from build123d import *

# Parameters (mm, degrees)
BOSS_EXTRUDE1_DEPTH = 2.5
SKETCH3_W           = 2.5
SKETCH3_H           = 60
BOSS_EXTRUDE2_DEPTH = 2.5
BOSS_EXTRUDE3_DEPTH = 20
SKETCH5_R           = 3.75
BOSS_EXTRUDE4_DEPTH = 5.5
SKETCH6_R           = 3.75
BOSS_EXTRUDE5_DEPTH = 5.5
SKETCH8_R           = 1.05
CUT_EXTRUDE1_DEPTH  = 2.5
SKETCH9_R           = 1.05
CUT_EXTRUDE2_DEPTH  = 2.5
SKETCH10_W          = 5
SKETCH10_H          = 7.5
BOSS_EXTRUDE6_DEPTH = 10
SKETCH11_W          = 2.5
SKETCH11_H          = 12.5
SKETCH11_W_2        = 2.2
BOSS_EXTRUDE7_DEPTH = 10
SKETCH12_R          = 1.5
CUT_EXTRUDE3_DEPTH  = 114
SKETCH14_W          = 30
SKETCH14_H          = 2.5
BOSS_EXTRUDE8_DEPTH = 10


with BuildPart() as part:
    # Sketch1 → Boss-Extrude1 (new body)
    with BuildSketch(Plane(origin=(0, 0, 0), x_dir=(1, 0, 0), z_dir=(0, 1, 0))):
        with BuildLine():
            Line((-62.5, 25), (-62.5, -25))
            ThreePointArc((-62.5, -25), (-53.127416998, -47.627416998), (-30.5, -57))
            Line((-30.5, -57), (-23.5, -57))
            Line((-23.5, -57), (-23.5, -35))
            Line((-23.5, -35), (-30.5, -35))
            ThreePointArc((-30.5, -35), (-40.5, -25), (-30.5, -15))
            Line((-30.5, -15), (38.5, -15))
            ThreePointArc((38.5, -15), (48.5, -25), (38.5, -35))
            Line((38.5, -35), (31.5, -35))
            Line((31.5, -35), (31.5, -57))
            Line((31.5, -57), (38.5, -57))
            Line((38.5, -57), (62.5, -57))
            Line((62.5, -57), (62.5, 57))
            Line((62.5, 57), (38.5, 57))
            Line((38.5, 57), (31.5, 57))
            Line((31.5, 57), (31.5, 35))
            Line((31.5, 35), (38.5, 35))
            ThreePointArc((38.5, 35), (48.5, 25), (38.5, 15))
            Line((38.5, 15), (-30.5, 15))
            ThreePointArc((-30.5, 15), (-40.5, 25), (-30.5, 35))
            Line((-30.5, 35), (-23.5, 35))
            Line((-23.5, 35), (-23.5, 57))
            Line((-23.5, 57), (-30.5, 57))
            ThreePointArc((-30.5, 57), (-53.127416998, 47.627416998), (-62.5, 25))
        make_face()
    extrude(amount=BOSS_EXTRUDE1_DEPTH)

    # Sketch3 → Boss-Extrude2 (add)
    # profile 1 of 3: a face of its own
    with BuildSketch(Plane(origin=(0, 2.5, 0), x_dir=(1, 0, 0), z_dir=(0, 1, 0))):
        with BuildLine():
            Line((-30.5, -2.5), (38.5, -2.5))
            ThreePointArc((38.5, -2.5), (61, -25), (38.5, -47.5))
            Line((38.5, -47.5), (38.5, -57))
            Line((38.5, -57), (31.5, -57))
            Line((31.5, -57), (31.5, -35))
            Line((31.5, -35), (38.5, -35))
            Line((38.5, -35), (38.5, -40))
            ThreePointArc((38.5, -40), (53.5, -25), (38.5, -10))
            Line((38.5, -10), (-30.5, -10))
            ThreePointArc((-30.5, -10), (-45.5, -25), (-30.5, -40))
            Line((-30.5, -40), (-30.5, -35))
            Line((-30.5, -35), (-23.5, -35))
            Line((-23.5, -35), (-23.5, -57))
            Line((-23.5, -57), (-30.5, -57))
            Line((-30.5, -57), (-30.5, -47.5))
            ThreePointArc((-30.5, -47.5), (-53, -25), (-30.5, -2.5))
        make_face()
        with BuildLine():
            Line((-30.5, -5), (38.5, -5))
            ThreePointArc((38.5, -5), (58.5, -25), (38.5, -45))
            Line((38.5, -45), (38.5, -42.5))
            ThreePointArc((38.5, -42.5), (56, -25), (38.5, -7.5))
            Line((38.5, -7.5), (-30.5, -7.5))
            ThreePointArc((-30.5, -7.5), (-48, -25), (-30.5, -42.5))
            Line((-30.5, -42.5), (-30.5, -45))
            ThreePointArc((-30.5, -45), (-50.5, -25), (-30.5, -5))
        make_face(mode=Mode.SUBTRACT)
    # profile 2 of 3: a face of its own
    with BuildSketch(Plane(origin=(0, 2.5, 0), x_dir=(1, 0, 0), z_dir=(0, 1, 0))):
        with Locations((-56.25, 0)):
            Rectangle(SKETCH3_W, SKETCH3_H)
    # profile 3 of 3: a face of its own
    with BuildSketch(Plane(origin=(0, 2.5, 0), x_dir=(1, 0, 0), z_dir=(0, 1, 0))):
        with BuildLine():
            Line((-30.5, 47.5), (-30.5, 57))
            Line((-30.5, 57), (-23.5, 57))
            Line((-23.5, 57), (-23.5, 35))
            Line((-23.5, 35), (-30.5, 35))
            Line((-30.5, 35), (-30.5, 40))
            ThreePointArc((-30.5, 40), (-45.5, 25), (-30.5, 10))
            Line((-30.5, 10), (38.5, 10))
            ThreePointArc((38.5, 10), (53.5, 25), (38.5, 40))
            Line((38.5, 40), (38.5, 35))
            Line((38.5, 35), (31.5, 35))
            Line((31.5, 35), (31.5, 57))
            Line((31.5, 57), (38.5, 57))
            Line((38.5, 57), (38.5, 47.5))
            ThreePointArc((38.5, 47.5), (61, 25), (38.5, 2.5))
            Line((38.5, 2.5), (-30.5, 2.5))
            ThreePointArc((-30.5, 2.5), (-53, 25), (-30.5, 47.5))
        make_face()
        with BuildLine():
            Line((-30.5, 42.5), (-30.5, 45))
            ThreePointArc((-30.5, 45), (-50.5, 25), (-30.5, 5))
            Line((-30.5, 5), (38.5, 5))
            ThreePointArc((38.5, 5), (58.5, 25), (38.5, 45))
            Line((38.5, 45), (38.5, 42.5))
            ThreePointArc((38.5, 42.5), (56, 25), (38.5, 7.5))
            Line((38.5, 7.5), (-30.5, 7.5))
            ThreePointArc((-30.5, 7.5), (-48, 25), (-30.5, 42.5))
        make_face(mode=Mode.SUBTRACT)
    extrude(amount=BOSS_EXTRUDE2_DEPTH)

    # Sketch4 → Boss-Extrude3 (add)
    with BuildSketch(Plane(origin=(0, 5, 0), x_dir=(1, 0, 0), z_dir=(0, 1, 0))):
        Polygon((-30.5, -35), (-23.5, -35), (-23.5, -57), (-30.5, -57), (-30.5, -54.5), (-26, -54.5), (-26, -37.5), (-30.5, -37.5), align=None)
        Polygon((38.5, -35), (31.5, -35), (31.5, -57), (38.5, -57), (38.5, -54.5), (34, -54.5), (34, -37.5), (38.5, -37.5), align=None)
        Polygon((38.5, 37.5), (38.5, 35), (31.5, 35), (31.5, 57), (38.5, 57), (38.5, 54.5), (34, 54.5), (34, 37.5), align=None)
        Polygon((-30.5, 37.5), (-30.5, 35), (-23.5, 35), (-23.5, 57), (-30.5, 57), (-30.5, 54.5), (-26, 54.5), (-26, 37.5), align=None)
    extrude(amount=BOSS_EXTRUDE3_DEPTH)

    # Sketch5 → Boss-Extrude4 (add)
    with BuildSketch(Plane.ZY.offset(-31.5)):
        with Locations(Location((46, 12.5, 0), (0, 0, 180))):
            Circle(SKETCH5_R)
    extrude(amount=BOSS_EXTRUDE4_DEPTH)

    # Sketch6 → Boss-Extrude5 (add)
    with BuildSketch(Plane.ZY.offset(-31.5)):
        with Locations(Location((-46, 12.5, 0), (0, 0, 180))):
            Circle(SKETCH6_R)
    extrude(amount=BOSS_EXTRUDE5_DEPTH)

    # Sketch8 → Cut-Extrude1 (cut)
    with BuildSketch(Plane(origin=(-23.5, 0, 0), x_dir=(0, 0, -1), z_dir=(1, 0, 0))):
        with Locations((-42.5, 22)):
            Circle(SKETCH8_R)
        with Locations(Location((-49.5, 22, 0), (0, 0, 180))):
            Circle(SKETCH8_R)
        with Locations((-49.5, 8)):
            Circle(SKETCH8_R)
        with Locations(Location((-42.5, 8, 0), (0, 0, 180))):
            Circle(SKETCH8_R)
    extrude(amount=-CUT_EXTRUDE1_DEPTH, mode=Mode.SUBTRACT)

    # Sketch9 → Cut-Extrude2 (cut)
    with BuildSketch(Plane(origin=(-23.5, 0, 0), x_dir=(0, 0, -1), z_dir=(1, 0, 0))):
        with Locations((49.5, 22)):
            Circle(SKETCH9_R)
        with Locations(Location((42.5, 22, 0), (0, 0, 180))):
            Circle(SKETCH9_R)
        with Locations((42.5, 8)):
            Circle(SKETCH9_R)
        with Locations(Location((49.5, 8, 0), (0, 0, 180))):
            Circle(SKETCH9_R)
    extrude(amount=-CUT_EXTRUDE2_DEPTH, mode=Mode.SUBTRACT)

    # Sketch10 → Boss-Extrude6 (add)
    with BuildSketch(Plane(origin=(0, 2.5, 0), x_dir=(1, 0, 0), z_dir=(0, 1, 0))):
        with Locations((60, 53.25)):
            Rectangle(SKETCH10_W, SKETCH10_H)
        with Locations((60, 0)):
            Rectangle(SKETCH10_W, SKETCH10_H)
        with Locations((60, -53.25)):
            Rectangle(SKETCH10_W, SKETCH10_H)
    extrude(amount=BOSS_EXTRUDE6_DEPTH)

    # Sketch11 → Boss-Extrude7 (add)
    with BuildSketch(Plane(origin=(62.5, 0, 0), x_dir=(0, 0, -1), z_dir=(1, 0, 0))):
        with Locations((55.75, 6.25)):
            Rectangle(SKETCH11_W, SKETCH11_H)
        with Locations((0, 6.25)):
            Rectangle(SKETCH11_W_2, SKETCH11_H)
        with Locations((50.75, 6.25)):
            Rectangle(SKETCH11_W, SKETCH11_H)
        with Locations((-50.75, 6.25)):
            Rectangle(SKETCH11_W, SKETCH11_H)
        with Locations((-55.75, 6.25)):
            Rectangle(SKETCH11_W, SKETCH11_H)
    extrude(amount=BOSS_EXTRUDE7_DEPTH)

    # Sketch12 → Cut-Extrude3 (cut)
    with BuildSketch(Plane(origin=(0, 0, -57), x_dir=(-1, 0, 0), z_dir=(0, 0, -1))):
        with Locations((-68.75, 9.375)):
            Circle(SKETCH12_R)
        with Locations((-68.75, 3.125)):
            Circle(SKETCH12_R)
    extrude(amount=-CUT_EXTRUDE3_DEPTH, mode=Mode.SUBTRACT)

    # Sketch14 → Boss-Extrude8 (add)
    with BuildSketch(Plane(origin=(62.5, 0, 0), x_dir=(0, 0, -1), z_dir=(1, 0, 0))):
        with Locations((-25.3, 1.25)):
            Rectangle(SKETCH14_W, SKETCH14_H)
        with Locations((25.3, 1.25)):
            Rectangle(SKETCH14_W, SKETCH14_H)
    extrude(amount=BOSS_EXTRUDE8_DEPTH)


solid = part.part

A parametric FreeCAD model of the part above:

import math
import FreeCAD as App
import Part
import Sketcher
from FreeCAD import Vector
Q = App.Units.Quantity


def add_polygon(sketch, points):
    """Adds a closed chain of lines whose ends are joined by coincident constraints."""
    first, n = sketch.GeometryCount, len(points)
    for a, b in zip(points, points[1:] + points[:1]):
        sketch.addGeometry(Part.LineSegment(App.Vector(*a, 0), App.Vector(*b, 0)), False)
    for i in range(n):
        sketch.addConstraint(Sketcher.Constraint("Coincident", first + i, 2, first + (i + 1) % n, 1))

doc = App.newDocument("Part")
params = doc.addObject("Spreadsheet::Sheet", "Params")
for row, (alias, value) in enumerate([
    ("sketch1_radius", "32 mm"),
    ("sketch1_radius2", "10 mm"),
    ("sketch1_width", "7 mm"),
    ("sketch1_width2", "69 mm"),
    ("sketch1_width3", "31 mm"),
    ("pad1_length", "2.5 mm"),
    ("sketch2_radius", "15 mm"),
    ("sketch2_radius2", "20 mm"),
    ("sketch2_radius3", "22.5 mm"),
    ("sketch2_radius4", "17.5 mm"),
    ("sketch2_width", "69 mm"),
    ("pad2_length", "2.5 mm"),
    ("sketch3_width", "7 mm"),
    ("sketch3_height", "17 mm"),
    ("sketch3_height2", "22 mm"),
    ("sketch3_width2", "4.5 mm"),
    ("pad3_length", "20 mm"),
    ("sketch4_diameter", "7.5 mm"),
    ("pad4_length", "5.5 mm"),
    ("sketch5_diameter", "7.5 mm"),
    ("pad5_length", "5.5 mm"),
    ("sketch6_diameter", "2.1 mm"),
    ("pocket1_length", "2.5 mm"),
    ("sketch7_diameter", "2.1 mm"),
    ("pocket2_length", "2.5 mm"),
    ("sketch8_width", "5 mm"),
    ("sketch8_height", "7.5 mm"),
    ("pad6_length", "10 mm"),
    ("sketch9_width", "12.5 mm"),
    ("sketch9_height", "2.5 mm"),
    ("sketch9_height2", "2.2 mm"),
    ("pad7_length", "10 mm"),
    ("sketch10_diameter", "3 mm"),
    ("pocket3_length", "114 mm"),
    ("sketch11_height", "30 mm"),
    ("sketch11_width", "2.5 mm"),
    ("pad8_length", "10 mm"),
], start=1):
    params.set(f"A{row}", alias)
    params.set(f"B{row}", "=" + value)
    params.setAlias(f"B{row}", alias)

body = doc.addObject("PartDesign::Body", "Body")

sketch1 = body.newObject("Sketcher::SketchObject", "Sketch")
sketch1.AttachmentSupport = (doc.getObject("XZ_Plane"), [""])
sketch1.MapMode = "FlatFace"
sketch1.addGeometry([
    Part.LineSegment(Vector(-62, -25, 0), Vector(-62, 25, 0)),
    Part.ArcOfCircle(Part.Circle(Vector(-30, 25, 0), Vector(0, 0, 1), 32), math.radians(90), math.radians(180)),
    Part.LineSegment(Vector(-30, 57, 0), Vector(-24, 57, 0)),
    Part.LineSegment(Vector(-24, 57, 0), Vector(-24, 35, 0)),
    Part.LineSegment(Vector(-24, 35, 0), Vector(-30, 35, 0)),
    Part.ArcOfCircle(Part.Circle(Vector(-30, 25, 0), Vector(0, 0, 1), 10), math.radians(90), math.radians(270)),
    Part.LineSegment(Vector(-30, 15, 0), Vector(38, 15, 0)),
    Part.ArcOfCircle(Part.Circle(Vector(38, 25, 0), Vector(0, 0, 1), 10), math.radians(-90), math.radians(90)),
    Part.LineSegment(Vector(38, 35, 0), Vector(32, 35, 0)),
    Part.LineSegment(Vector(32, 35, 0), Vector(32, 57, 0)),
    Part.LineSegment(Vector(32, 57, 0), Vector(62, 57, 0)),
    Part.LineSegment(Vector(62, 57, 0), Vector(62, -57, 0)),
    Part.LineSegment(Vector(62, -57, 0), Vector(32, -57, 0)),
    Part.LineSegment(Vector(32, -57, 0), Vector(32, -35, 0)),
    Part.LineSegment(Vector(32, -35, 0), Vector(38, -35, 0)),
    Part.ArcOfCircle(Part.Circle(Vector(38, -25, 0), Vector(0, 0, 1), 10), math.radians(-90), math.radians(90)),
    Part.LineSegment(Vector(38, -15, 0), Vector(-30, -15, 0)),
    Part.ArcOfCircle(Part.Circle(Vector(-30, -25, 0), Vector(0, 0, 1), 10), math.radians(90), math.radians(270)),
    Part.LineSegment(Vector(-30, -35, 0), Vector(-24, -35, 0)),
    Part.LineSegment(Vector(-24, -35, 0), Vector(-24, -57, 0)),
    Part.LineSegment(Vector(-24, -57, 0), Vector(-30, -57, 0)),
    Part.ArcOfCircle(Part.Circle(Vector(-30, -25, 0), Vector(0, 0, 1), 32), math.radians(180), math.radians(270)),
], False)
sketch1.addConstraint([
    Sketcher.Constraint("Tangent", 0, 2, 1, 2),
    Sketcher.Constraint("Tangent", 1, 1, 2, 1),
    Sketcher.Constraint("Coincident", 2, 2, 3, 1),
    Sketcher.Constraint("Coincident", 3, 2, 4, 1),
    Sketcher.Constraint("Tangent", 4, 2, 5, 1),
    Sketcher.Constraint("Tangent", 5, 2, 6, 1),
    Sketcher.Constraint("Tangent", 6, 2, 7, 1),
    Sketcher.Constraint("Tangent", 7, 2, 8, 1),
    Sketcher.Constraint("Coincident", 8, 2, 9, 1),
    Sketcher.Constraint("Coincident", 9, 2, 10, 1),
    Sketcher.Constraint("Coincident", 10, 2, 11, 1),
    Sketcher.Constraint("Coincident", 11, 2, 12, 1),
    Sketcher.Constraint("Coincident", 12, 2, 13, 1),
    Sketcher.Constraint("Coincident", 13, 2, 14, 1),
    Sketcher.Constraint("Tangent", 14, 2, 15, 1),
    Sketcher.Constraint("Tangent", 15, 2, 16, 1),
    Sketcher.Constraint("Tangent", 16, 2, 17, 1),
    Sketcher.Constraint("Tangent", 17, 2, 18, 1),
    Sketcher.Constraint("Coincident", 18, 2, 19, 1),
    Sketcher.Constraint("Coincident", 19, 2, 20, 1),
    Sketcher.Constraint("Tangent", 20, 2, 21, 2),
    Sketcher.Constraint("Tangent", 21, 1, 0, 1),
    Sketcher.Constraint("Vertical", 0),
    Sketcher.Constraint("Horizontal", 2),
    Sketcher.Constraint("Vertical", 3),
    Sketcher.Constraint("Horizontal", 4),
    Sketcher.Constraint("Horizontal", 6),
    Sketcher.Constraint("Horizontal", 8),
    Sketcher.Constraint("Vertical", 9),
    Sketcher.Constraint("Horizontal", 10),
    Sketcher.Constraint("Vertical", 11),
    Sketcher.Constraint("Horizontal", 12),
    Sketcher.Constraint("Vertical", 13),
    Sketcher.Constraint("Horizontal", 14),
    Sketcher.Constraint("Horizontal", 16),
    Sketcher.Constraint("Horizontal", 18),
    Sketcher.Constraint("Vertical", 19),
    Sketcher.Constraint("Horizontal", 20),
    Sketcher.Constraint("Coincident", 5, 3, 1, 3),
    Sketcher.Constraint("Coincident", 21, 3, 17, 3),
    Sketcher.Constraint("Equal", 5, 7),
    Sketcher.Constraint("Equal", 7, 15),
    Sketcher.Constraint("Equal", 15, 17),
    Sketcher.Constraint("Equal", 1, 21),
    Sketcher.Constraint("Symmetric", 7, 3, 15, 3, -1),
    Sketcher.Constraint("Symmetric", 9, 2, 12, 2, -1),
    Sketcher.Constraint("Horizontal", 2, 2, 9, 2),
    Sketcher.Constraint("Vertical", 3, 2, 18, 2),
    Sketcher.Constraint("Equal", 4, 8),
    Sketcher.Constraint("Radius", 1, Q("32 mm")),
    Sketcher.Constraint("Radius", 5, Q("10 mm")),
    Sketcher.Constraint("DistanceX", 2, 1, 2, 2, Q("7 mm")),
    Sketcher.Constraint("DistanceX", 6, 1, 6, 2, Q("69 mm")),
    Sketcher.Constraint("DistanceX", 10, 1, 10, 2, Q("31 mm")),
    Sketcher.Constraint("DistanceY", 0, 1, 0, 2, Q("50 mm")),
    Sketcher.Constraint("DistanceX", 1, 3, -1, 1, Q("30.5 mm")),
])
sketch1.setExpression("Constraints[49]", "Params.sketch1_radius")
sketch1.setExpression("Constraints[50]", "Params.sketch1_radius2")
sketch1.setExpression("Constraints[51]", "Params.sketch1_width")
sketch1.setExpression("Constraints[52]", "Params.sketch1_width2")
sketch1.setExpression("Constraints[53]", "Params.sketch1_width3")
pad1 = body.newObject("PartDesign::Pad", "Pad")
pad1.Profile = sketch1
pad1.setExpression("Length", "Params.pad1_length")
pad1.Reversed = True

sketch2 = body.newObject("Sketcher::SketchObject", "Sketch001")
sketch2.AttachmentSupport = (doc.getObject("XZ_Plane"), [""])
sketch2.MapMode = "FlatFace"
sketch2.AttachmentOffset = App.Placement(Vector(0, 0, -2.5), App.Rotation())
sketch2.addGeometry(Part.LineSegment(Vector(38.5, 2.5, 0), Vector(-30.5, 2.5, 0)), False)
sketch2.addGeometry(Part.ArcOfCircle(Part.Circle(Vector(-30.5, 25, 0), Vector(0, 0, 1), 22.5), math.radians(90), math.radians(270)), False)
sketch2.addGeometry(Part.LineSegment(Vector(-30.5, 47.5, 0), Vector(-30.5, 57, 0)), False)
sketch2.addGeometry(Part.LineSegment(Vector(-30.5, 57, 0), Vector(-23.5, 57, 0)), False)
sketch2.addGeometry(Part.LineSegment(Vector(-23.5, 57, 0), Vector(-23.5, 35, 0)), False)
sketch2.addGeometry(Part.LineSegment(Vector(-23.5, 35, 0), Vector(-30.5, 35, 0)), False)
sketch2.addGeometry(Part.LineSegment(Vector(-30.5, 35, 0), Vector(-30.5, 40, 0)), False)
sketch2.addGeometry(Part.ArcOfCircle(Part.Circle(Vector(-30.5, 25, 0), Vector(0, 0, 1), 15), math.radians(90), math.radians(270)), False)
sketch2.addGeometry(Part.LineSegment(Vector(-30.5, 10, 0), Vector(38.5, 10, 0)), False)
sketch2.addGeometry(Part.ArcOfCircle(Part.Circle(Vector(38.5, 25, 0), Vector(0, 0, 1), 15), math.radians(-90), math.radians(90)), False)
sketch2.addGeometry(Part.LineSegment(Vector(38.5, 40, 0), Vector(38.5, 35, 0)), False)
sketch2.addGeometry(Part.LineSegment(Vector(38.5, 35, 0), Vector(31.5, 35, 0)), False)
sketch2.addGeometry(Part.LineSegment(Vector(31.5, 35, 0), Vector(31.5, 57, 0)), False)
sketch2.addGeometry(Part.LineSegment(Vector(31.5, 57, 0), Vector(38.5, 57, 0)), False)
sketch2.addGeometry(Part.LineSegment(Vector(38.5, 57, 0), Vector(38.5, 47.5, 0)), False)
sketch2.addGeometry(Part.ArcOfCircle(Part.Circle(Vector(38.5, 25, 0), Vector(0, 0, 1), 22.5), math.radians(-90), math.radians(90)), False)
sketch2.addGeometry(Part.LineSegment(Vector(-30.5, 5, 0), Vector(38.5, 5, 0)), False)
sketch2.addGeometry(Part.ArcOfCircle(Part.Circle(Vector(38.5, 25, 0), Vector(0, 0, 1), 20), math.radians(-90), math.radians(90)), False)
sketch2.addGeometry(Part.LineSegment(Vector(38.5, 45, 0), Vector(38.5, 42.5, 0)), False)
sketch2.addGeometry(Part.ArcOfCircle(Part.Circle(Vector(38.5, 25, 0), Vector(0, 0, 1), 17.5), math.radians(-90), math.radians(90)), False)
sketch2.addGeometry(Part.LineSegment(Vector(38.5, 7.5, 0), Vector(-30.5, 7.5, 0)), False)
sketch2.addGeometry(Part.ArcOfCircle(Part.Circle(Vector(-30.5, 25, 0), Vector(0, 0, 1), 17.5), math.radians(90), math.radians(270)), False)
sketch2.addGeometry(Part.LineSegment(Vector(-30.5, 42.5, 0), Vector(-30.5, 45, 0)), False)
sketch2.addGeometry(Part.ArcOfCircle(Part.Circle(Vector(-30.5, 25, 0), Vector(0, 0, 1), 20), math.radians(90), math.radians(270)), False)
add_polygon(sketch2, [(-57.5, -30), (-57.5, 30), (-55, 30), (-55, -30)])
sketch2.addGeometry(Part.LineSegment(Vector(-30.5, -57, 0), Vector(-30.5, -47.5, 0)), False)
sketch2.addGeometry(Part.ArcOfCircle(Part.Circle(Vector(-30.5, -25, 0), Vector(0, 0, 1), 22.5), math.radians(90), math.radians(270)), False)
sketch2.addGeometry(Part.LineSegment(Vector(-30.5, -2.5, 0), Vector(38.5, -2.5, 0)), False)
sketch2.addGeometry(Part.ArcOfCircle(Part.Circle(Vector(38.5, -25, 0), Vector(0, 0, 1), 22.5), math.radians(-90), math.radians(90)), False)
sketch2.addGeometry(Part.LineSegment(Vector(38.5, -47.5, 0), Vector(38.5, -57, 0)), False)
sketch2.addGeometry(Part.LineSegment(Vector(38.5, -57, 0), Vector(31.5, -57, 0)), False)
sketch2.addGeometry(Part.LineSegment(Vector(31.5, -57, 0), Vector(31.5, -35, 0)), False)
sketch2.addGeometry(Part.LineSegment(Vector(31.5, -35, 0), Vector(38.5, -35, 0)), False)
sketch2.addGeometry(Part.LineSegment(Vector(38.5, -35, 0), Vector(38.5, -40, 0)), False)
sketch2.addGeometry(Part.ArcOfCircle(Part.Circle(Vector(38.5, -25, 0), Vector(0, 0, 1), 15), math.radians(-90), math.radians(90)), False)
sketch2.addGeometry(Part.LineSegment(Vector(38.5, -10, 0), Vector(-30.5, -10, 0)), False)
sketch2.addGeometry(Part.ArcOfCircle(Part.Circle(Vector(-30.5, -25, 0), Vector(0, 0, 1), 15), math.radians(90), math.radians(270)), False)
sketch2.addGeometry(Part.LineSegment(Vector(-30.5, -40, 0), Vector(-30.5, -35, 0)), False)
sketch2.addGeometry(Part.LineSegment(Vector(-30.5, -35, 0), Vector(-23.5, -35, 0)), False)
sketch2.addGeometry(Part.LineSegment(Vector(-23.5, -35, 0), Vector(-23.5, -57, 0)), False)
sketch2.addGeometry(Part.LineSegment(Vector(-23.5, -57, 0), Vector(-30.5, -57, 0)), False)
sketch2.addGeometry(Part.ArcOfCircle(Part.Circle(Vector(-30.5, -25, 0), Vector(0, 0, 1), 17.5), math.radians(90), math.radians(270)), False)
sketch2.addGeometry(Part.LineSegment(Vector(-30.5, -7.5, 0), Vector(38.5, -7.5, 0)), False)
sketch2.addGeometry(Part.ArcOfCircle(Part.Circle(Vector(38.5, -25, 0), Vector(0, 0, 1), 17.5), math.radians(-90), math.radians(90)), False)
sketch2.addGeometry(Part.LineSegment(Vector(38.5, -42.5, 0), Vector(38.5, -45, 0)), False)
sketch2.addGeometry(Part.ArcOfCircle(Part.Circle(Vector(38.5, -25, 0), Vector(0, 0, 1), 20), math.radians(-90), math.radians(90)), False)
sketch2.addGeometry(Part.LineSegment(Vector(38.5, -5, 0), Vector(-30.5, -5, 0)), False)
sketch2.addGeometry(Part.ArcOfCircle(Part.Circle(Vector(-30.5, -25, 0), Vector(0, 0, 1), 20), math.radians(90), math.radians(270)), False)
sketch2.addGeometry(Part.LineSegment(Vector(-30.5, -45, 0), Vector(-30.5, -42.5, 0)), False)
sketch2.addConstraint([
    Sketcher.Constraint("Tangent", 0, 2, 1, 2),
    Sketcher.Constraint("Coincident", 1, 1, 2, 1),
    Sketcher.Constraint("Coincident", 2, 2, 3, 1),
    Sketcher.Constraint("Coincident", 3, 2, 4, 1),
    Sketcher.Constraint("Coincident", 4, 2, 5, 1),
    Sketcher.Constraint("Coincident", 5, 2, 6, 1),
    Sketcher.Constraint("Coincident", 6, 2, 7, 1),
    Sketcher.Constraint("Tangent", 7, 2, 8, 1),
    Sketcher.Constraint("Tangent", 8, 2, 9, 1),
    Sketcher.Constraint("Coincident", 9, 2, 10, 1),
    Sketcher.Constraint("Coincident", 10, 2, 11, 1),
    Sketcher.Constraint("Coincident", 11, 2, 12, 1),
    Sketcher.Constraint("Coincident", 12, 2, 13, 1),
    Sketcher.Constraint("Coincident", 13, 2, 14, 1),
    Sketcher.Constraint("Coincident", 14, 2, 15, 2),
    Sketcher.Constraint("Tangent", 15, 1, 0, 1),
    Sketcher.Constraint("Tangent", 16, 2, 17, 1),
    Sketcher.Constraint("Coincident", 17, 2, 18, 1),
    Sketcher.Constraint("Coincident", 18, 2, 19, 2),
    Sketcher.Constraint("Tangent", 19, 1, 20, 1),
    Sketcher.Constraint("Tangent", 20, 2, 21, 2),
    Sketcher.Constraint("Coincident", 21, 1, 22, 1),
    Sketcher.Constraint("Coincident", 22, 2, 23, 1),
    Sketcher.Constraint("Tangent", 23, 2, 16, 1),
    Sketcher.Constraint("Coincident", 28, 2, 29, 2),
    Sketcher.Constraint("Tangent", 29, 1, 30, 1),
    Sketcher.Constraint("Tangent", 30, 2, 31, 2),
    Sketcher.Constraint("Coincident", 31, 1, 32, 1),
    Sketcher.Constraint("Coincident", 32, 2, 33, 1),
    Sketcher.Constraint("Coincident", 33, 2, 34, 1),
    Sketcher.Constraint("Coincident", 34, 2, 35, 1),
    Sketcher.Constraint("Coincident", 35, 2, 36, 1),
    Sketcher.Constraint("Coincident", 36, 2, 37, 1),
    Sketcher.Constraint("Tangent", 37, 2, 38, 1),
    Sketcher.Constraint("Tangent", 38, 2, 39, 1),
    Sketcher.Constraint("Coincident", 39, 2, 40, 1),
    Sketcher.Constraint("Coincident", 40, 2, 41, 1),
    Sketcher.Constraint("Coincident", 41, 2, 42, 1),
    Sketcher.Constraint("Coincident", 42, 2, 43, 1),
    Sketcher.Constraint("Coincident", 43, 2, 28, 1),
    Sketcher.Constraint("Tangent", 44, 1, 45, 1),
    Sketcher.Constraint("Tangent", 45, 2, 46, 2),
    Sketcher.Constraint("Coincident", 46, 1, 47, 1),
    Sketcher.Constraint("Coincident", 47, 2, 48, 1),
    Sketcher.Constraint("Tangent", 48, 2, 49, 1),
    Sketcher.Constraint("Tangent", 49, 2, 50, 1),
    Sketcher.Constraint("Coincident", 50, 2, 51, 1),
    Sketcher.Constraint("Coincident", 51, 2, 44, 2),
    Sketcher.Constraint("Horizontal", 0),
    Sketcher.Constraint("Vertical", 2),
    Sketcher.Constraint("Horizontal", 3),
    Sketcher.Constraint("Vertical", 4),
    Sketcher.Constraint("Horizontal", 5),
    Sketcher.Constraint("Vertical", 6),
    Sketcher.Constraint("Horizontal", 8),
    Sketcher.Constraint("Vertical", 10),
    Sketcher.Constraint("Horizontal", 11),
    Sketcher.Constraint("Vertical", 12),
    Sketcher.Constraint("Horizontal", 13),
    Sketcher.Constraint("Vertical", 14),
    Sketcher.Constraint("Horizontal", 16),
    Sketcher.Constraint("Vertical", 18),
    Sketcher.Constraint("Horizontal", 20),
    Sketcher.Constraint("Vertical", 22),
    Sketcher.Constraint("Vertical", 24),
    Sketcher.Constraint("Horizontal", 25),
    Sketcher.Constraint("Vertical", 26),
    Sketcher.Constraint("Horizontal", 27),
    Sketcher.Constraint("Vertical", 28),
    Sketcher.Constraint("Horizontal", 30),
    Sketcher.Constraint("Vertical", 32),
    Sketcher.Constraint("Horizontal", 33),
    Sketcher.Constraint("Vertical", 34),
    Sketcher.Constraint("Horizontal", 35),
    Sketcher.Constraint("Vertical", 36),
    Sketcher.Constraint("Horizontal", 38),
    Sketcher.Constraint("Vertical", 40),
    Sketcher.Constraint("Horizontal", 41),
    Sketcher.Constraint("Vertical", 42),
    Sketcher.Constraint("Horizontal", 43),
    Sketcher.Constraint("Horizontal", 45),
    Sketcher.Constraint("Vertical", 47),
    Sketcher.Constraint("Horizontal", 49),
    Sketcher.Constraint("Vertical", 51),
    Sketcher.Constraint("Coincident", 7, 3, 1, 3),
    Sketcher.Constraint("Coincident", 15, 3, 9, 3),
    Sketcher.Constraint("Coincident", 17, 3, 9, 3),
    Sketcher.Constraint("Coincident", 19, 3, 9, 3),
    Sketcher.Constraint("Coincident", 21, 3, 1, 3),
    Sketcher.Constraint("Coincident", 23, 3, 1, 3),
    Sketcher.Constraint("Coincident", 37, 3, 31, 3),
    Sketcher.Constraint("Coincident", 39, 3, 29, 3),
    Sketcher.Constraint("Coincident", 44, 3, 29, 3),
    Sketcher.Constraint("Coincident", 46, 3, 31, 3),
    Sketcher.Constraint("Coincident", 48, 3, 31, 3),
    Sketcher.Constraint("Coincident", 50, 3, 29, 3),
    Sketcher.Constraint("Equal", 7, 9),
    Sketcher.Constraint("Equal", 15, 29),
    Sketcher.Constraint("Equal", 29, 31),
    Sketcher.Constraint("Equal", 9, 37),
    Sketcher.Constraint("Equal", 21, 44),
    Sketcher.Constraint("Equal", 23, 48),
    Sketcher.Constraint("Symmetric", 1, 3, 29, 3, -1),
    Sketcher.Constraint("Symmetric", 13, 2, 32, 2, -1),
    Sketcher.Constraint("Symmetric", 11, 2, 34, 2, -1),
    Sketcher.Constraint("Symmetric", 5, 2, 40, 2, -1),
    Sketcher.Constraint("Symmetric", 3, 2, 42, 2, -1),
    Sketcher.Constraint("Horizontal", 5, 2, 10, 2),
    Sketcher.Constraint("Horizontal", 3, 2, 12, 2),
    Sketcher.Constraint("Vertical", 19, 3, 31, 3),
    Sketcher.Constraint("Vertical", 0, 2, 1, 1),
    Sketcher.Constraint("Vertical", 2, 2, 5, 2),
    Sketcher.Constraint("Vertical", 8, 2, 9, 2),
    Sketcher.Constraint("Vertical", 10, 2, 13, 2),
    Sketcher.Constraint("Vertical", 16, 2, 17, 2),
    Sketcher.Constraint("Vertical", 20, 2, 21, 1),
    Sketcher.Constraint("Vertical", 23, 2, 28, 2),
    Sketcher.Constraint("Vertical", 32, 2, 35, 2),
    Sketcher.Constraint("Vertical", 45, 2, 46, 1),
    Sketcher.Constraint("Vertical", 49, 2, 50, 2),
    Sketcher.Constraint("Equal", 5, 11),
    Sketcher.Constraint("Equal", 27, 18),
    Sketcher.Constraint("Radius", 7, Q("15 mm")),
    Sketcher.Constraint("Radius", 17, Q("20 mm")),
    Sketcher.Constraint("Radius", 1, Q("22.5 mm")),
    Sketcher.Constraint("Radius", 19, Q("17.5 mm")),
    Sketcher.Constraint("DistanceX", 0, 2, 0, 1, Q("69 mm")),
    Sketcher.Constraint("DistanceX", 3, 1, 3, 2, Q("7 mm")),
    Sketcher.Constraint("DistanceY", 4, 2, 4, 1, Q("22 mm")),
    Sketcher.Constraint("DistanceY", 6, 1, 6, 2, Q("5 mm")),
    Sketcher.Constraint("DistanceY", 24, 1, 24, 2, Q("60 mm")),
    Sketcher.Constraint("DistanceY", -1, 1, 1, 3, Q("25 mm")),
    Sketcher.Constraint("DistanceY", -1, 1, 24, 2, Q("30 mm")),
    Sketcher.Constraint("DistanceX", 25, 2, -1, 1, Q("55 mm")),
    Sketcher.Constraint("DistanceX", 1, 3, -1, 1, Q("30.5 mm")),
])
sketch2.setExpression("Constraints[126]", "Params.sketch2_radius")
sketch2.setExpression("Constraints[127]", "Params.sketch2_radius2")
sketch2.setExpression("Constraints[128]", "Params.sketch2_radius3")
sketch2.setExpression("Constraints[129]", "Params.sketch2_radius4")
sketch2.setExpression("Constraints[130]", "Params.sketch2_width")
pad2 = body.newObject("PartDesign::Pad", "Pad001")
pad2.Profile = sketch2
pad2.setExpression("Length", "Params.pad2_length")
pad2.Reversed = True

sketch3 = body.newObject("Sketcher::SketchObject", "Sketch002")
sketch3.AttachmentSupport = (doc.getObject("XZ_Plane"), [""])
sketch3.MapMode = "FlatFace"
sketch3.AttachmentOffset = App.Placement(Vector(0, 0, -5), App.Rotation())
add_polygon(sketch3, [(-23.5, 35), (-30.5, 35), (-30.5, 37.5), (-26, 37.5), (-26, 54.5), (-30.5, 54.5), (-30.5, 57), (-23.5, 57)])
add_polygon(sketch3, [(38.5, 35), (31.5, 35), (31.5, 57), (38.5, 57), (38.5, 54.5), (34, 54.5), (34, 37.5), (38.5, 37.5)])
add_polygon(sketch3, [(38.5, -35), (38.5, -37.5), (34, -37.5), (34, -54.5), (38.5, -54.5), (38.5, -57), (31.5, -57), (31.5, -35)])
add_polygon(sketch3, [(-30.5, -37.5), (-30.5, -35), (-23.5, -35), (-23.5, -57), (-30.5, -57), (-30.5, -54.5), (-26, -54.5), (-26, -37.5)])
sketch3.addConstraint([
    Sketcher.Constraint("Horizontal", 0),
    Sketcher.Constraint("Vertical", 1),
    Sketcher.Constraint("Horizontal", 2),
    Sketcher.Constraint("Vertical", 3),
    Sketcher.Constraint("Horizontal", 4),
    Sketcher.Constraint("Vertical", 5),
    Sketcher.Constraint("Horizontal", 6),
    Sketcher.Constraint("Vertical", 7),
    Sketcher.Constraint("Horizontal", 8),
    Sketcher.Constraint("Vertical", 9),
    Sketcher.Constraint("Horizontal", 10),
    Sketcher.Constraint("Vertical", 11),
    Sketcher.Constraint("Horizontal", 12),
    Sketcher.Constraint("Vertical", 13),
    Sketcher.Constraint("Horizontal", 14),
    Sketcher.Constraint("Vertical", 15),
    Sketcher.Constraint("Vertical", 16),
    Sketcher.Constraint("Horizontal", 17),
    Sketcher.Constraint("Vertical", 18),
    Sketcher.Constraint("Horizontal", 19),
    Sketcher.Constraint("Vertical", 20),
    Sketcher.Constraint("Horizontal", 21),
    Sketcher.Constraint("Vertical", 22),
    Sketcher.Constraint("Horizontal", 23),
    Sketcher.Constraint("Vertical", 24),
    Sketcher.Constraint("Horizontal", 25),
    Sketcher.Constraint("Vertical", 26),
    Sketcher.Constraint("Horizontal", 27),
    Sketcher.Constraint("Vertical", 28),
    Sketcher.Constraint("Horizontal", 29),
    Sketcher.Constraint("Vertical", 30),
    Sketcher.Constraint("Horizontal", 31),
    Sketcher.Constraint("Symmetric", 14, 2, 16, 2, -1),
    Sketcher.Constraint("Symmetric", 12, 2, 18, 2, -1),
    Sketcher.Constraint("Symmetric", 10, 2, 20, 2, -1),
    Sketcher.Constraint("Symmetric", 8, 2, 22, 2, -1),
    Sketcher.Constraint("Symmetric", 0, 2, 24, 2, -1),
    Sketcher.Constraint("Symmetric", 6, 2, 26, 2, -1),
    Sketcher.Constraint("Symmetric", 4, 2, 28, 2, -1),
    Sketcher.Constraint("Symmetric", 2, 2, 30, 2, -1),
    Sketcher.Constraint("Horizontal", 7, 2, 8, 2),
    Sketcher.Constraint("Horizontal", 6, 2, 9, 2),
    Sketcher.Constraint("Horizontal", 4, 2, 11, 2),
    Sketcher.Constraint("Horizontal", 2, 2, 13, 2),
    Sketcher.Constraint("Vertical", 1, 2, 4, 2),
    Sketcher.Constraint("Vertical", 11, 2, 14, 2),
    Sketcher.Constraint("Equal", 6, 8),
    Sketcher.Constraint("Equal", 4, 12),
    Sketcher.Constraint("Equal", 1, 5),
    Sketcher.Constraint("DistanceX", 0, 2, 0, 1, Q("7 mm")),
    Sketcher.Constraint("DistanceY", 3, 1, 3, 2, Q("17 mm")),
    Sketcher.Constraint("DistanceY", 7, 2, 7, 1, Q("22 mm")),
    Sketcher.Constraint("DistanceX", 2, 1, 2, 2, Q("4.5 mm")),
    Sketcher.Constraint("DistanceY", -1, 1, 0, 2, Q("35 mm")),
    Sketcher.Constraint("DistanceX", 2, 2, -1, 1, Q("26 mm")),
    Sketcher.Constraint("DistanceX", -1, 1, 12, 2, Q("34 mm")),
])
sketch3.setExpression("Constraints[81]", "Params.sketch3_width")
sketch3.setExpression("Constraints[82]", "Params.sketch3_height")
sketch3.setExpression("Constraints[83]", "Params.sketch3_height2")
sketch3.setExpression("Constraints[84]", "Params.sketch3_width2")
pad3 = body.newObject("PartDesign::Pad", "Pad002")
pad3.Profile = sketch3
pad3.setExpression("Length", "Params.pad3_length")
pad3.Reversed = True

sketch4 = body.newObject("Sketcher::SketchObject", "Sketch003")
sketch4.AttachmentSupport = (doc.getObject("YZ_Plane"), [""])
sketch4.MapMode = "FlatFace"
sketch4.AttachmentOffset = App.Placement(Vector(0, 0, 31.5), App.Rotation())
sketch4.addGeometry(Part.Circle(Vector(12.5, 46, 0), Vector(0, 0, 1), 3.8), False)
sketch4.addConstraint([
    Sketcher.Constraint("Diameter", 0, Q("7.5 mm")),
    Sketcher.Constraint("DistanceY", -1, 1, 0, 3, Q("46 mm")),
    Sketcher.Constraint("DistanceX", -1, 1, 0, 3, Q("12.5 mm")),
])
sketch4.setExpression("Constraints[0]", "Params.sketch4_diameter")
pad4 = body.newObject("PartDesign::Pad", "Pad003")
pad4.Profile = sketch4
pad4.setExpression("Length", "Params.pad4_length")
pad4.Reversed = True

sketch5 = body.newObject("Sketcher::SketchObject", "Sketch004")
sketch5.AttachmentSupport = (doc.getObject("YZ_Plane"), [""])
sketch5.MapMode = "FlatFace"
sketch5.AttachmentOffset = App.Placement(Vector(0, 0, 31.5), App.Rotation())
sketch5.addGeometry(Part.Circle(Vector(12.5, -46, 0), Vector(0, 0, 1), 3.8), False)
sketch5.addConstraint([
    Sketcher.Constraint("Diameter", 0, Q("7.5 mm")),
    Sketcher.Constraint("DistanceY", 0, 3, -1, 1, Q("46 mm")),
    Sketcher.Constraint("DistanceX", -1, 1, 0, 3, Q("12.5 mm")),
])
sketch5.setExpression("Constraints[0]", "Params.sketch5_diameter")
pad5 = body.newObject("PartDesign::Pad", "Pad004")
pad5.Profile = sketch5
pad5.setExpression("Length", "Params.pad5_length")
pad5.Reversed = True

sketch6 = body.newObject("Sketcher::SketchObject", "Sketch005")
sketch6.AttachmentSupport = (doc.getObject("YZ_Plane"), [""])
sketch6.MapMode = "FlatFace"
sketch6.AttachmentOffset = App.Placement(Vector(0, 0, -23.5), App.Rotation())
sketch6.addGeometry([
    Part.Circle(Vector(22, 42.5, 0), Vector(0, 0, 1), 1.1),
    Part.Circle(Vector(22, 49.5, 0), Vector(0, 0, 1), 1.1),
    Part.Circle(Vector(8, 49.5, 0), Vector(0, 0, 1), 1.1),
    Part.Circle(Vector(8, 42.5, 0), Vector(0, 0, 1), 1.1),
], False)
sketch6.addConstraint([
    Sketcher.Constraint("Equal", 0, 1),
    Sketcher.Constraint("Equal", 1, 2),
    Sketcher.Constraint("Equal", 2, 3),
    Sketcher.Constraint("Horizontal", 1, 3, 2, 3),
    Sketcher.Constraint("Horizontal", 0, 3, 3, 3),
    Sketcher.Constraint("Vertical", 0, 3, 1, 3),
    Sketcher.Constraint("Vertical", 2, 3, 3, 3),
    Sketcher.Constraint("Diameter", 0, Q("2.1 mm")),
    Sketcher.Constraint("DistanceX", -1, 1, 0, 3, Q("22 mm")),
    Sketcher.Constraint("DistanceX", -1, 1, 2, 3, Q("8 mm")),
    Sketcher.Constraint("DistanceY", 0, 3, 1, 3, Q("7 mm")),
    Sketcher.Constraint("DistanceY", -1, 1, 0, 3, Q("42.5 mm")),
])
sketch6.setExpression("Constraints[7]", "Params.sketch6_diameter")
pocket1 = body.newObject("PartDesign::Pocket", "Pocket")
pocket1.Profile = sketch6
pocket1.setExpression("Length", "Params.pocket1_length")

sketch7 = body.newObject("Sketcher::SketchObject", "Sketch006")
sketch7.AttachmentSupport = (doc.getObject("YZ_Plane"), [""])
sketch7.MapMode = "FlatFace"
sketch7.AttachmentOffset = App.Placement(Vector(0, 0, -23.5), App.Rotation())
sketch7.addGeometry([
    Part.Circle(Vector(22, -49.5, 0), Vector(0, 0, 1), 1.1),
    Part.Circle(Vector(22, -42.5, 0), Vector(0, 0, 1), 1.1),
    Part.Circle(Vector(8, -42.5, 0), Vector(0, 0, 1), 1.1),
    Part.Circle(Vector(8, -49.5, 0), Vector(0, 0, 1), 1.1),
], False)
sketch7.addConstraint([
    Sketcher.Constraint("Equal", 0, 1),
    Sketcher.Constraint("Equal", 1, 2),
    Sketcher.Constraint("Equal", 2, 3),
    Sketcher.Constraint("Horizontal", 1, 3, 2, 3),
    Sketcher.Constraint("Horizontal", 0, 3, 3, 3),
    Sketcher.Constraint("Vertical", 0, 3, 1, 3),
    Sketcher.Constraint("Vertical", 2, 3, 3, 3),
    Sketcher.Constraint("Diameter", 0, Q("2.1 mm")),
    Sketcher.Constraint("DistanceX", -1, 1, 0, 3, Q("22 mm")),
    Sketcher.Constraint("DistanceX", -1, 1, 2, 3, Q("8 mm")),
    Sketcher.Constraint("DistanceY", 0, 3, 1, 3, Q("7 mm")),
    Sketcher.Constraint("DistanceY", 0, 3, -1, 1, Q("49.5 mm")),
])
sketch7.setExpression("Constraints[7]", "Params.sketch7_diameter")
pocket2 = body.newObject("PartDesign::Pocket", "Pocket001")
pocket2.Profile = sketch7
pocket2.setExpression("Length", "Params.pocket2_length")

sketch8 = body.newObject("Sketcher::SketchObject", "Sketch007")
sketch8.AttachmentSupport = (doc.getObject("XZ_Plane"), [""])
sketch8.MapMode = "FlatFace"
sketch8.AttachmentOffset = App.Placement(Vector(0, 0, -2.5), App.Rotation())
add_polygon(sketch8, [(58, -57), (58, -50), (62, -50), (62, -57)])
add_polygon(sketch8, [(58, -4), (58, 4), (62, 4), (62, -4)])
add_polygon(sketch8, [(58, 50), (58, 57), (62, 57), (62, 50)])
sketch8.addConstraint([
    Sketcher.Constraint("Vertical", 0),
    Sketcher.Constraint("Horizontal", 1),
    Sketcher.Constraint("Vertical", 2),
    Sketcher.Constraint("Horizontal", 3),
    Sketcher.Constraint("Vertical", 4),
    Sketcher.Constraint("Horizontal", 5),
    Sketcher.Constraint("Vertical", 6),
    Sketcher.Constraint("Horizontal", 7),
    Sketcher.Constraint("Vertical", 8),
    Sketcher.Constraint("Horizontal", 9),
    Sketcher.Constraint("Vertical", 10),
    Sketcher.Constraint("Horizontal", 11),
    Sketcher.Constraint("Symmetric", 3, 2, 8, 2, -1),
    Sketcher.Constraint("Symmetric", 1, 2, 10, 2, -1),
    Sketcher.Constraint("Vertical", 3, 2, 4, 2),
    Sketcher.Constraint("Vertical", 2, 2, 5, 2),
    Sketcher.Constraint("Equal", 2, 4),
    Sketcher.Constraint("DistanceX", 1, 1, 1, 2, Q("5 mm")),
    Sketcher.Constraint("DistanceY", 0, 1, 0, 2, Q("7.5 mm")),
    Sketcher.Constraint("DistanceY", 2, 2, -1, 1, Q("57 mm")),
    Sketcher.Constraint("DistanceX", -1, 1, 0, 2, Q("57.5 mm")),
    Sketcher.Constraint("DistanceY", -1, 1, 4, 2, Q("3.75 mm")),
])
sketch8.setExpression("Constraints[29]", "Params.sketch8_width")
sketch8.setExpression("Constraints[30]", "Params.sketch8_height")
pad6 = body.newObject("PartDesign::Pad", "Pad005")
pad6.Profile = sketch8
pad6.setExpression("Length", "Params.pad6_length")
pad6.Reversed = True

sketch9 = body.newObject("Sketcher::SketchObject", "Sketch008")
sketch9.AttachmentSupport = (doc.getObject("YZ_Plane"), [""])
sketch9.MapMode = "FlatFace"
sketch9.AttachmentOffset = App.Placement(Vector(0, 0, 62.5), App.Rotation())
add_polygon(sketch9, [(12.5, -54.5), (0, -54.5), (0, -57), (12.5, -57)])
add_polygon(sketch9, [(12.5, 1.1), (0, 1.1), (0, -1.1), (12.5, -1.1)])
add_polygon(sketch9, [(12.5, -49.5), (0, -49.5), (0, -52), (12.5, -52)])
add_polygon(sketch9, [(12.5, 52), (0, 52), (0, 49.5), (12.5, 49.5)])
add_polygon(sketch9, [(12.5, 57), (0, 57), (0, 54.5), (12.5, 54.5)])
sketch9.addConstraint([
    Sketcher.Constraint("Horizontal", 0),
    Sketcher.Constraint("Vertical", 1),
    Sketcher.Constraint("Horizontal", 2),
    Sketcher.Constraint("Vertical", 3),
    Sketcher.Constraint("Horizontal", 4),
    Sketcher.Constraint("Vertical", 5),
    Sketcher.Constraint("Horizontal", 6),
    Sketcher.Constraint("Vertical", 7),
    Sketcher.Constraint("Horizontal", 8),
    Sketcher.Constraint("Vertical", 9),
    Sketcher.Constraint("Horizontal", 10),
    Sketcher.Constraint("Vertical", 11),
    Sketcher.Constraint("Horizontal", 12),
    Sketcher.Constraint("Vertical", 13),
    Sketcher.Constraint("Horizontal", 14),
    Sketcher.Constraint("Vertical", 15),
    Sketcher.Constraint("Horizontal", 16),
    Sketcher.Constraint("Vertical", 17),
    Sketcher.Constraint("Horizontal", 18),
    Sketcher.Constraint("Vertical", 19),
    Sketcher.Constraint("Symmetric", 4, 2, 5, 2, -1, 1),
    Sketcher.Constraint("Symmetric", 9, 2, 12, 2, -1, 1),
    Sketcher.Constraint("Symmetric", 1, 2, 16, 2, -1, 1),
    Sketcher.Constraint("Symmetric", 8, 2, 13, 2, -1),
    Sketcher.Constraint("Symmetric", 0, 2, 17, 2, -1),
    Sketcher.Constraint("Vertical", 3, 2, 6, 2),
    Sketcher.Constraint("Vertical", 7, 2, 10, 2),
    Sketcher.Constraint("Vertical", 11, 2, 14, 2),
    Sketcher.Constraint("Vertical", 15, 2, 18, 2),
    Sketcher.Constraint("Equal", 3, 9),
    Sketcher.Constraint("DistanceX", 0, 2, 0, 1, Q("12.5 mm")),
    Sketcher.Constraint("DistanceY", 1, 2, 1, 1, Q("2.5 mm")),
    Sketcher.Constraint("DistanceY", 5, 2, 5, 1, Q("2.2 mm")),
    Sketcher.Constraint("DistanceY", 1, 2, -1, 1, Q("57 mm")),
    Sketcher.Constraint("DistanceY", 9, 2, -1, 1, Q("52 mm")),
])
sketch9.setExpression("Constraints[50]", "Params.sketch9_width")
sketch9.setExpression("Constraints[51]", "Params.sketch9_height")
sketch9.setExpression("Constraints[52]", "Params.sketch9_height2")
pad7 = body.newObject("PartDesign::Pad", "Pad006")
pad7.Profile = sketch9
pad7.setExpression("Length", "Params.pad7_length")

sketch10 = body.newObject("Sketcher::SketchObject", "Sketch009")
sketch10.AttachmentSupport = (doc.getObject("XY_Plane"), [""])
sketch10.MapMode = "FlatFace"
sketch10.AttachmentOffset = App.Placement(Vector(0, 0, -57), App.Rotation())
sketch10.addGeometry([
    Part.Circle(Vector(68.8, 9.4, 0), Vector(0, 0, 1), 1.5),
    Part.Circle(Vector(68.8, 3.1, 0), Vector(0, 0, 1), 1.5),
], False)
sketch10.addConstraint([
    Sketcher.Constraint("Equal", 0, 1),
    Sketcher.Constraint("Vertical", 0, 3, 1, 3),
    Sketcher.Constraint("Diameter", 0, Q("3 mm")),
    Sketcher.Constraint("DistanceX", -1, 1, 0, 3, Q("68.75 mm")),
    Sketcher.Constraint("DistanceY", 1, 3, 0, 3, Q("6.25 mm")),
    Sketcher.Constraint("DistanceY", -1, 1, 0, 3, Q("9.375 mm")),
])
sketch10.setExpression("Constraints[2]", "Params.sketch10_diameter")
pocket3 = body.newObject("PartDesign::Pocket", "Pocket002")
pocket3.Profile = sketch10
pocket3.setExpression("Length", "Params.pocket3_length")
pocket3.Reversed = True

sketch11 = body.newObject("Sketcher::SketchObject", "Sketch010")
sketch11.AttachmentSupport = (doc.getObject("YZ_Plane"), [""])
sketch11.MapMode = "FlatFace"
sketch11.AttachmentOffset = App.Placement(Vector(0, 0, 62.5), App.Rotation())
add_polygon(sketch11, [(2.5, 40.3), (0, 40.3), (0, 10.3), (2.5, 10.3)])
add_polygon(sketch11, [(2.5, -10.3), (0, -10.3), (0, -40.3), (2.5, -40.3)])
sketch11.addConstraint([
    Sketcher.Constraint("Horizontal", 0),
    Sketcher.Constraint("Vertical", 1),
    Sketcher.Constraint("Horizontal", 2),
    Sketcher.Constraint("Vertical", 3),
    Sketcher.Constraint("Horizontal", 4),
    Sketcher.Constraint("Vertical", 5),
    Sketcher.Constraint("Horizontal", 6),
    Sketcher.Constraint("Vertical", 7),
    Sketcher.Constraint("Symmetric", 1, 2, 4, 2, -1, 1),
    Sketcher.Constraint("Symmetric", 0, 2, 5, 2, -1),
    Sketcher.Constraint("Vertical", 3, 2, 6, 2),
    Sketcher.Constraint("DistanceY", 1, 2, 1, 1, Q("30 mm")),
    Sketcher.Constraint("DistanceX", 0, 2, 0, 1, Q("2.5 mm")),
    Sketcher.Constraint("DistanceY", -1, 1, 0, 2, Q("40.3 mm")),
])
sketch11.setExpression("Constraints[19]", "Params.sketch11_height")
sketch11.setExpression("Constraints[20]", "Params.sketch11_width")
pad8 = body.newObject("PartDesign::Pad", "Pad007")
pad8.Profile = sketch11
pad8.setExpression("Length", "Params.pad8_length")

doc.recompute()
